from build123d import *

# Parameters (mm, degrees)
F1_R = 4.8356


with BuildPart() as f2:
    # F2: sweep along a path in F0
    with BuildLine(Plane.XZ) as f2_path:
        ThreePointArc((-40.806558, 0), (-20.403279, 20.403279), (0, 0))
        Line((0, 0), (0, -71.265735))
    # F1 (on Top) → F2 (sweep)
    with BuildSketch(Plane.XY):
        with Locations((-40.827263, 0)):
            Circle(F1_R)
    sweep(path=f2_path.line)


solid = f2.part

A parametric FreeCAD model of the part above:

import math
import FreeCAD as App
import Part
import Sketcher

doc = App.newDocument("Part")
body = doc.addObject("PartDesign::Body", "Body")

# Sketch on XY plane
sketch1 = doc.addObject("Sketcher::SketchObject", "Sketch")
body.addObject(sketch1)
sketch1.AttachmentSupport = (doc.XY_Plane, [""])
sketch1.MapMode = "FlatFace"
sketch1.addGeometry(Part.Circle(App.Vector(-40.8, 0, 0), App.Vector(0, 0, 1), 4.8), False)
sketch1.addConstraint([
    Sketcher.Constraint("PointOnObject", 0, 3, -1),
    Sketcher.Constraint("Diameter", 0, 9.6712),
    Sketcher.Constraint("DistanceX", 0, 3, -1, 1, 40.827263),
])

# Sketch on XZ plane
sketch2 = doc.addObject("Sketcher::SketchObject", "Sketch001")
body.addObject(sketch2)
sketch2.AttachmentSupport = (doc.XZ_Plane, [""])
sketch2.MapMode = "FlatFace"
sketch2.addGeometry([
    Part.ArcOfCircle(Part.Circle(App.Vector(-20, 0, 0), App.Vector(0, 0, 1), 20), math.radians(0), math.radians(180)),
    Part.LineSegment(App.Vector(0, 0, 0), App.Vector(0, -71, 0)),
], False)
sketch2.addConstraint([
    Sketcher.Constraint("Tangent", 0, 1, 1, 1),
    Sketcher.Constraint("Vertical", 1),
    Sketcher.Constraint("Coincident", 0, 1, -1, 1),
    Sketcher.Constraint("PointOnObject", 0, 2, -1),
    Sketcher.Constraint("Radius", 0, 20.403279),
    Sketcher.Constraint("DistanceY", 1, 2, 1, 1, 71.265735),
])
doc.recompute()

additivepipe = doc.addObject("PartDesign::AdditivePipe", "AdditivePipe")
body.addObject(additivepipe)
additivepipe.Profile = sketch1
additivepipe.Spine = (sketch2, ["Edge1", "Edge2"])

doc.recompute()
